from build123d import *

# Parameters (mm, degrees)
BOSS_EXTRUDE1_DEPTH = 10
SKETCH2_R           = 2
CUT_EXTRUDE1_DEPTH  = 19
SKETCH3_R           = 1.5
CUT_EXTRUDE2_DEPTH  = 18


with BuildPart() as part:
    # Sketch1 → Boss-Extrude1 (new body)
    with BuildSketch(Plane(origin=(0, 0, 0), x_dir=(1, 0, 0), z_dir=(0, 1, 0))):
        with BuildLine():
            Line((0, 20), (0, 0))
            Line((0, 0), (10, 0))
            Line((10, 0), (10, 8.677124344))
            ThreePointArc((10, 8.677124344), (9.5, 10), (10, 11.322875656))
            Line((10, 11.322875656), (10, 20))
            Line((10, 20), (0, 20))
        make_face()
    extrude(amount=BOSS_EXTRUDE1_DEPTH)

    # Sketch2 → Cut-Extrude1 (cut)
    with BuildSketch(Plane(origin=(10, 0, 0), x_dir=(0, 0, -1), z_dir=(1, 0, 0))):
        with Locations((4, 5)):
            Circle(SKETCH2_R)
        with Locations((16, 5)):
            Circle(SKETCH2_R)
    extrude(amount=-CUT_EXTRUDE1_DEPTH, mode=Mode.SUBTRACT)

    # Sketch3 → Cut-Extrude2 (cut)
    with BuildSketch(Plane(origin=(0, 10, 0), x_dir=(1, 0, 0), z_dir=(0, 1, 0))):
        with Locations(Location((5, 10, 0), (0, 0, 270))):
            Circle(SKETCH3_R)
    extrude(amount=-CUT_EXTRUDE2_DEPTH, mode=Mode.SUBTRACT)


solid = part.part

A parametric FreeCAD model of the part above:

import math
import FreeCAD as App
import Part
import Sketcher
from FreeCAD import Vector

doc = App.newDocument("Part")
body = doc.addObject("PartDesign::Body", "Body")

# Sketch on XZ plane
sketch1 = body.newObject("Sketcher::SketchObject", "Sketch")
sketch1.AttachmentSupport = (doc.getObject("XZ_Plane"), [""])
sketch1.MapMode = "FlatFace"
sketch1.addGeometry([
    Part.LineSegment(Vector(0, -20, 0), Vector(0, 0, 0)),  # 0
    Part.LineSegment(Vector(0, 0, 0), Vector(10, 0, 0)),  # 1
    Part.LineSegment(Vector(10, 0, 0), Vector(10, -8.7, 0)),  # 2
    Part.ArcOfCircle(Part.Circle(Vector(11.5, -10, 0), Vector(0, 0, 1), 2), math.radians(139), math.radians(221)),  # 3
    Part.LineSegment(Vector(10, -11.3, 0), Vector(10, -20, 0)),  # 4
    Part.LineSegment(Vector(10, -20, 0), Vector(0, -20, 0)),  # 5
], False)
sketch1.addConstraint([
    Sketcher.Constraint("Coincident", 0, 2, 1, 1),
    Sketcher.Constraint("Coincident", 1, 2, 2, 1),
    Sketcher.Constraint("Coincident", 2, 2, 3, 1),
    Sketcher.Constraint("Coincident", 3, 2, 4, 1),
    Sketcher.Constraint("Coincident", 4, 2, 5, 1),
    Sketcher.Constraint("Coincident", 5, 2, 0, 1),
    Sketcher.Constraint("Vertical", 0),
    Sketcher.Constraint("Horizontal", 1),
    Sketcher.Constraint("Vertical", 2),
    Sketcher.Constraint("Vertical", 4),
    Sketcher.Constraint("Horizontal", 5),
    Sketcher.Constraint("Coincident", 0, 2, -1, 1),
    Sketcher.Constraint("Vertical", 2, 2, 3, 2),
    Sketcher.Constraint("Equal", 2, 4),
    Sketcher.Constraint("Radius", 3, 2.0),
    Sketcher.Constraint("DistanceX", 1, 1, 1, 2, 10.0),
    Sketcher.Constraint("DistanceY", 0, 1, 0, 2, 20.0),
    Sketcher.Constraint("DistanceX", -1, 1, 3, 3, 11.5),
])
pad1 = body.newObject("PartDesign::Pad", "Pad")
pad1.Profile = sketch1
pad1.Length = 10
pad1.Reversed = True

# Sketch on YZ plane
sketch2 = body.newObject("Sketcher::SketchObject", "Sketch001")
sketch2.AttachmentSupport = (doc.getObject("YZ_Plane"), [""])
sketch2.MapMode = "FlatFace"
sketch2.AttachmentOffset = App.Placement(Vector(0, 0, 10), App.Rotation())
sketch2.addGeometry([
    Part.Circle(Vector(5, -4, 0), Vector(0, 0, 1), 2),
    Part.Circle(Vector(5, -16, 0), Vector(0, 0, 1), 2),
], False)
sketch2.addConstraint([
    Sketcher.Constraint("Equal", 0, 1),
    Sketcher.Constraint("Vertical", 0, 3, 1, 3),
    Sketcher.Constraint("Diameter", 0, 4.0),
    Sketcher.Constraint("DistanceX", -1, 1, 0, 3, 5.0),
    Sketcher.Constraint("DistanceY", 0, 3, -1, 1, 4.0),
    Sketcher.Constraint("DistanceY", 1, 3, -1, 1, 16.0),
])
pocket1 = body.newObject("PartDesign::Pocket", "Pocket")
pocket1.Profile = sketch2
pocket1.Length = 19

# Sketch on XZ plane
sketch3 = body.newObject("Sketcher::SketchObject", "Sketch002")
sketch3.AttachmentSupport = (doc.getObject("XZ_Plane"), [""])
sketch3.MapMode = "FlatFace"
sketch3.AttachmentOffset = App.Placement(Vector(0, 0, -10), App.Rotation())
sketch3.addGeometry(Part.Circle(Vector(5, -10, 0), Vector(0, 0, 1), 1.5), False)
sketch3.addConstraint([
    Sketcher.Constraint("Diameter", 0, 3.0),
    Sketcher.Constraint("DistanceX", -1, 1, 0, 3, 5.0),
    Sketcher.Constraint("DistanceY", 0, 3, -1, 1, 10.0),
])
pocket2 = body.newObject("PartDesign::Pocket", "Pocket001")
pocket2.Profile = sketch3
pocket2.Length = 18
pocket2.Reversed = True

doc.recompute()
